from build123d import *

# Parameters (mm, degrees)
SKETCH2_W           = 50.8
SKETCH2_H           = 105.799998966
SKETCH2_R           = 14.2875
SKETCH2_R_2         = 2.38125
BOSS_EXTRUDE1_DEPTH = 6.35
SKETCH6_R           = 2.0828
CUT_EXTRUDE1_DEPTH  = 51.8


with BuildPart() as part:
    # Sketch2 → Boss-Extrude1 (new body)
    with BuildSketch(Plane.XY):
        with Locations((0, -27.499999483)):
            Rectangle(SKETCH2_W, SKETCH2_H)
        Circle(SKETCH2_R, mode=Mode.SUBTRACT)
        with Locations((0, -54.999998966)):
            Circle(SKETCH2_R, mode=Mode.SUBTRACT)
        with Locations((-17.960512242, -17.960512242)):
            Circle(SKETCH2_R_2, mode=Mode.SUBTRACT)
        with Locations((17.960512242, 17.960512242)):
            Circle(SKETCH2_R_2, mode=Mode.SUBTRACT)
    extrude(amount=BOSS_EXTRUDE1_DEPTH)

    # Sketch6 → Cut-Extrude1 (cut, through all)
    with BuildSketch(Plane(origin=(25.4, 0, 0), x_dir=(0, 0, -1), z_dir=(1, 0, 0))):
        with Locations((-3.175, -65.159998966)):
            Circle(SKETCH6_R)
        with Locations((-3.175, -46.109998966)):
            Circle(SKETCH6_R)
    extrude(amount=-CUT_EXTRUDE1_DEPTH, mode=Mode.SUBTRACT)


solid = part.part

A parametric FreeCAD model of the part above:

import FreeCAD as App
import Part
import Sketcher
Q = App.Units.Quantity

doc = App.newDocument("Part")
body = doc.addObject("PartDesign::Body", "Body")

sketch1 = body.newObject("Sketcher::SketchObject", "Sketch")
sketch1.AttachmentSupport = (doc.getObject("XY_Plane"), [""])
sketch1.MapMode = "FlatFace"
sketch1.addGeometry([
    Part.LineSegment(App.Vector(-25.4, 25.4, 0), App.Vector(-25.4, -80.4, 0)),
    Part.LineSegment(App.Vector(-25.4, -80.4, 0), App.Vector(25.4, -80.4, 0)),
    Part.LineSegment(App.Vector(25.4, -80.4, 0), App.Vector(25.4, 25.4, 0)),
    Part.LineSegment(App.Vector(25.4, 25.4, 0), App.Vector(-25.4, 25.4, 0)),
    Part.Circle(App.Vector(0, -55, 0), App.Vector(0, 0, 1), 14.3),
    Part.Circle(App.Vector(-18, -18, 0), App.Vector(0, 0, 1), 2.4),
    Part.Circle(App.Vector(0, 0, 0), App.Vector(0, 0, 1), 14.3),
    Part.Circle(App.Vector(18, 18, 0), App.Vector(0, 0, 1), 2.4),
], False)
sketch1.addConstraint([
    Sketcher.Constraint("Coincident", 0, 2, 1, 1),
    Sketcher.Constraint("Coincident", 1, 2, 2, 1),
    Sketcher.Constraint("Coincident", 2, 2, 3, 1),
    Sketcher.Constraint("Coincident", 3, 2, 0, 1),
    Sketcher.Constraint("Vertical", 0),
    Sketcher.Constraint("Horizontal", 1),
    Sketcher.Constraint("Vertical", 2),
    Sketcher.Constraint("Horizontal", 3),
    Sketcher.Constraint("Coincident", 6, 3, -1, 1),
    Sketcher.Constraint("Equal", 4, 6),
    Sketcher.Constraint("Equal", 5, 7),
    Sketcher.Constraint("Symmetric", 5, 3, 7, 3, -1, 1),
    Sketcher.Constraint("PointOnObject", 4, 3, -2),
    Sketcher.Constraint("DistanceX", 1, 1, 1, 2, Q("2 in")),
    Sketcher.Constraint("Diameter", 4, Q("1.125 in")),
    Sketcher.Constraint("Diameter", 5, Q("0.1875 in")),
    Sketcher.Constraint("DistanceX", 0, 2, -1, 1, Q("1 in")),
    Sketcher.Constraint("DistanceY", -1, 1, 2, 2, Q("1 in")),
    Sketcher.Constraint("DistanceY", 0, 2, 4, 3, Q("1 in")),
    Sketcher.Constraint("DistanceY", 0, 2, 0, 1, 105.799999),
    Sketcher.Constraint("DistanceY", 4, 3, 7, 3, 72.960511),
    Sketcher.Constraint("DistanceX", 5, 3, -1, 1, 17.960512),
])
pad1 = body.newObject("PartDesign::Pad", "Pad")
pad1.Profile = sketch1
pad1.Length = Q("0.25 in")

sketch2 = body.newObject("Sketcher::SketchObject", "Sketch001")
sketch2.AttachmentSupport = (doc.getObject("YZ_Plane"), [""])
sketch2.MapMode = "FlatFace"
sketch2.AttachmentOffset = App.Placement(App.Vector(0, 0, 1 * 25.4), App.Rotation())
sketch2.addGeometry([
    Part.Circle(App.Vector(-65.2, 3.2, 0), App.Vector(0, 0, 1), 2.1),
    Part.Circle(App.Vector(-46.1, 3.2, 0), App.Vector(0, 0, 1), 2.1),
], False)
sketch2.addConstraint([
    Sketcher.Constraint("Equal", 0, 1),
    Sketcher.Constraint("Horizontal", 0, 3, 1, 3),
    Sketcher.Constraint("Diameter", 0, Q("0.164 in")),
    Sketcher.Constraint("DistanceX", 0, 3, 1, 3, Q("0.75 in")),
    Sketcher.Constraint("DistanceY", -1, 1, 0, 3, Q("0.125 in")),
    Sketcher.Constraint("DistanceX", 0, 3, -1, 1, 65.159999),
])
pocket1 = body.newObject("PartDesign::Pocket", "Pocket")
pocket1.Profile = sketch2
pocket1.Type = "ThroughAll"

doc.recompute()
